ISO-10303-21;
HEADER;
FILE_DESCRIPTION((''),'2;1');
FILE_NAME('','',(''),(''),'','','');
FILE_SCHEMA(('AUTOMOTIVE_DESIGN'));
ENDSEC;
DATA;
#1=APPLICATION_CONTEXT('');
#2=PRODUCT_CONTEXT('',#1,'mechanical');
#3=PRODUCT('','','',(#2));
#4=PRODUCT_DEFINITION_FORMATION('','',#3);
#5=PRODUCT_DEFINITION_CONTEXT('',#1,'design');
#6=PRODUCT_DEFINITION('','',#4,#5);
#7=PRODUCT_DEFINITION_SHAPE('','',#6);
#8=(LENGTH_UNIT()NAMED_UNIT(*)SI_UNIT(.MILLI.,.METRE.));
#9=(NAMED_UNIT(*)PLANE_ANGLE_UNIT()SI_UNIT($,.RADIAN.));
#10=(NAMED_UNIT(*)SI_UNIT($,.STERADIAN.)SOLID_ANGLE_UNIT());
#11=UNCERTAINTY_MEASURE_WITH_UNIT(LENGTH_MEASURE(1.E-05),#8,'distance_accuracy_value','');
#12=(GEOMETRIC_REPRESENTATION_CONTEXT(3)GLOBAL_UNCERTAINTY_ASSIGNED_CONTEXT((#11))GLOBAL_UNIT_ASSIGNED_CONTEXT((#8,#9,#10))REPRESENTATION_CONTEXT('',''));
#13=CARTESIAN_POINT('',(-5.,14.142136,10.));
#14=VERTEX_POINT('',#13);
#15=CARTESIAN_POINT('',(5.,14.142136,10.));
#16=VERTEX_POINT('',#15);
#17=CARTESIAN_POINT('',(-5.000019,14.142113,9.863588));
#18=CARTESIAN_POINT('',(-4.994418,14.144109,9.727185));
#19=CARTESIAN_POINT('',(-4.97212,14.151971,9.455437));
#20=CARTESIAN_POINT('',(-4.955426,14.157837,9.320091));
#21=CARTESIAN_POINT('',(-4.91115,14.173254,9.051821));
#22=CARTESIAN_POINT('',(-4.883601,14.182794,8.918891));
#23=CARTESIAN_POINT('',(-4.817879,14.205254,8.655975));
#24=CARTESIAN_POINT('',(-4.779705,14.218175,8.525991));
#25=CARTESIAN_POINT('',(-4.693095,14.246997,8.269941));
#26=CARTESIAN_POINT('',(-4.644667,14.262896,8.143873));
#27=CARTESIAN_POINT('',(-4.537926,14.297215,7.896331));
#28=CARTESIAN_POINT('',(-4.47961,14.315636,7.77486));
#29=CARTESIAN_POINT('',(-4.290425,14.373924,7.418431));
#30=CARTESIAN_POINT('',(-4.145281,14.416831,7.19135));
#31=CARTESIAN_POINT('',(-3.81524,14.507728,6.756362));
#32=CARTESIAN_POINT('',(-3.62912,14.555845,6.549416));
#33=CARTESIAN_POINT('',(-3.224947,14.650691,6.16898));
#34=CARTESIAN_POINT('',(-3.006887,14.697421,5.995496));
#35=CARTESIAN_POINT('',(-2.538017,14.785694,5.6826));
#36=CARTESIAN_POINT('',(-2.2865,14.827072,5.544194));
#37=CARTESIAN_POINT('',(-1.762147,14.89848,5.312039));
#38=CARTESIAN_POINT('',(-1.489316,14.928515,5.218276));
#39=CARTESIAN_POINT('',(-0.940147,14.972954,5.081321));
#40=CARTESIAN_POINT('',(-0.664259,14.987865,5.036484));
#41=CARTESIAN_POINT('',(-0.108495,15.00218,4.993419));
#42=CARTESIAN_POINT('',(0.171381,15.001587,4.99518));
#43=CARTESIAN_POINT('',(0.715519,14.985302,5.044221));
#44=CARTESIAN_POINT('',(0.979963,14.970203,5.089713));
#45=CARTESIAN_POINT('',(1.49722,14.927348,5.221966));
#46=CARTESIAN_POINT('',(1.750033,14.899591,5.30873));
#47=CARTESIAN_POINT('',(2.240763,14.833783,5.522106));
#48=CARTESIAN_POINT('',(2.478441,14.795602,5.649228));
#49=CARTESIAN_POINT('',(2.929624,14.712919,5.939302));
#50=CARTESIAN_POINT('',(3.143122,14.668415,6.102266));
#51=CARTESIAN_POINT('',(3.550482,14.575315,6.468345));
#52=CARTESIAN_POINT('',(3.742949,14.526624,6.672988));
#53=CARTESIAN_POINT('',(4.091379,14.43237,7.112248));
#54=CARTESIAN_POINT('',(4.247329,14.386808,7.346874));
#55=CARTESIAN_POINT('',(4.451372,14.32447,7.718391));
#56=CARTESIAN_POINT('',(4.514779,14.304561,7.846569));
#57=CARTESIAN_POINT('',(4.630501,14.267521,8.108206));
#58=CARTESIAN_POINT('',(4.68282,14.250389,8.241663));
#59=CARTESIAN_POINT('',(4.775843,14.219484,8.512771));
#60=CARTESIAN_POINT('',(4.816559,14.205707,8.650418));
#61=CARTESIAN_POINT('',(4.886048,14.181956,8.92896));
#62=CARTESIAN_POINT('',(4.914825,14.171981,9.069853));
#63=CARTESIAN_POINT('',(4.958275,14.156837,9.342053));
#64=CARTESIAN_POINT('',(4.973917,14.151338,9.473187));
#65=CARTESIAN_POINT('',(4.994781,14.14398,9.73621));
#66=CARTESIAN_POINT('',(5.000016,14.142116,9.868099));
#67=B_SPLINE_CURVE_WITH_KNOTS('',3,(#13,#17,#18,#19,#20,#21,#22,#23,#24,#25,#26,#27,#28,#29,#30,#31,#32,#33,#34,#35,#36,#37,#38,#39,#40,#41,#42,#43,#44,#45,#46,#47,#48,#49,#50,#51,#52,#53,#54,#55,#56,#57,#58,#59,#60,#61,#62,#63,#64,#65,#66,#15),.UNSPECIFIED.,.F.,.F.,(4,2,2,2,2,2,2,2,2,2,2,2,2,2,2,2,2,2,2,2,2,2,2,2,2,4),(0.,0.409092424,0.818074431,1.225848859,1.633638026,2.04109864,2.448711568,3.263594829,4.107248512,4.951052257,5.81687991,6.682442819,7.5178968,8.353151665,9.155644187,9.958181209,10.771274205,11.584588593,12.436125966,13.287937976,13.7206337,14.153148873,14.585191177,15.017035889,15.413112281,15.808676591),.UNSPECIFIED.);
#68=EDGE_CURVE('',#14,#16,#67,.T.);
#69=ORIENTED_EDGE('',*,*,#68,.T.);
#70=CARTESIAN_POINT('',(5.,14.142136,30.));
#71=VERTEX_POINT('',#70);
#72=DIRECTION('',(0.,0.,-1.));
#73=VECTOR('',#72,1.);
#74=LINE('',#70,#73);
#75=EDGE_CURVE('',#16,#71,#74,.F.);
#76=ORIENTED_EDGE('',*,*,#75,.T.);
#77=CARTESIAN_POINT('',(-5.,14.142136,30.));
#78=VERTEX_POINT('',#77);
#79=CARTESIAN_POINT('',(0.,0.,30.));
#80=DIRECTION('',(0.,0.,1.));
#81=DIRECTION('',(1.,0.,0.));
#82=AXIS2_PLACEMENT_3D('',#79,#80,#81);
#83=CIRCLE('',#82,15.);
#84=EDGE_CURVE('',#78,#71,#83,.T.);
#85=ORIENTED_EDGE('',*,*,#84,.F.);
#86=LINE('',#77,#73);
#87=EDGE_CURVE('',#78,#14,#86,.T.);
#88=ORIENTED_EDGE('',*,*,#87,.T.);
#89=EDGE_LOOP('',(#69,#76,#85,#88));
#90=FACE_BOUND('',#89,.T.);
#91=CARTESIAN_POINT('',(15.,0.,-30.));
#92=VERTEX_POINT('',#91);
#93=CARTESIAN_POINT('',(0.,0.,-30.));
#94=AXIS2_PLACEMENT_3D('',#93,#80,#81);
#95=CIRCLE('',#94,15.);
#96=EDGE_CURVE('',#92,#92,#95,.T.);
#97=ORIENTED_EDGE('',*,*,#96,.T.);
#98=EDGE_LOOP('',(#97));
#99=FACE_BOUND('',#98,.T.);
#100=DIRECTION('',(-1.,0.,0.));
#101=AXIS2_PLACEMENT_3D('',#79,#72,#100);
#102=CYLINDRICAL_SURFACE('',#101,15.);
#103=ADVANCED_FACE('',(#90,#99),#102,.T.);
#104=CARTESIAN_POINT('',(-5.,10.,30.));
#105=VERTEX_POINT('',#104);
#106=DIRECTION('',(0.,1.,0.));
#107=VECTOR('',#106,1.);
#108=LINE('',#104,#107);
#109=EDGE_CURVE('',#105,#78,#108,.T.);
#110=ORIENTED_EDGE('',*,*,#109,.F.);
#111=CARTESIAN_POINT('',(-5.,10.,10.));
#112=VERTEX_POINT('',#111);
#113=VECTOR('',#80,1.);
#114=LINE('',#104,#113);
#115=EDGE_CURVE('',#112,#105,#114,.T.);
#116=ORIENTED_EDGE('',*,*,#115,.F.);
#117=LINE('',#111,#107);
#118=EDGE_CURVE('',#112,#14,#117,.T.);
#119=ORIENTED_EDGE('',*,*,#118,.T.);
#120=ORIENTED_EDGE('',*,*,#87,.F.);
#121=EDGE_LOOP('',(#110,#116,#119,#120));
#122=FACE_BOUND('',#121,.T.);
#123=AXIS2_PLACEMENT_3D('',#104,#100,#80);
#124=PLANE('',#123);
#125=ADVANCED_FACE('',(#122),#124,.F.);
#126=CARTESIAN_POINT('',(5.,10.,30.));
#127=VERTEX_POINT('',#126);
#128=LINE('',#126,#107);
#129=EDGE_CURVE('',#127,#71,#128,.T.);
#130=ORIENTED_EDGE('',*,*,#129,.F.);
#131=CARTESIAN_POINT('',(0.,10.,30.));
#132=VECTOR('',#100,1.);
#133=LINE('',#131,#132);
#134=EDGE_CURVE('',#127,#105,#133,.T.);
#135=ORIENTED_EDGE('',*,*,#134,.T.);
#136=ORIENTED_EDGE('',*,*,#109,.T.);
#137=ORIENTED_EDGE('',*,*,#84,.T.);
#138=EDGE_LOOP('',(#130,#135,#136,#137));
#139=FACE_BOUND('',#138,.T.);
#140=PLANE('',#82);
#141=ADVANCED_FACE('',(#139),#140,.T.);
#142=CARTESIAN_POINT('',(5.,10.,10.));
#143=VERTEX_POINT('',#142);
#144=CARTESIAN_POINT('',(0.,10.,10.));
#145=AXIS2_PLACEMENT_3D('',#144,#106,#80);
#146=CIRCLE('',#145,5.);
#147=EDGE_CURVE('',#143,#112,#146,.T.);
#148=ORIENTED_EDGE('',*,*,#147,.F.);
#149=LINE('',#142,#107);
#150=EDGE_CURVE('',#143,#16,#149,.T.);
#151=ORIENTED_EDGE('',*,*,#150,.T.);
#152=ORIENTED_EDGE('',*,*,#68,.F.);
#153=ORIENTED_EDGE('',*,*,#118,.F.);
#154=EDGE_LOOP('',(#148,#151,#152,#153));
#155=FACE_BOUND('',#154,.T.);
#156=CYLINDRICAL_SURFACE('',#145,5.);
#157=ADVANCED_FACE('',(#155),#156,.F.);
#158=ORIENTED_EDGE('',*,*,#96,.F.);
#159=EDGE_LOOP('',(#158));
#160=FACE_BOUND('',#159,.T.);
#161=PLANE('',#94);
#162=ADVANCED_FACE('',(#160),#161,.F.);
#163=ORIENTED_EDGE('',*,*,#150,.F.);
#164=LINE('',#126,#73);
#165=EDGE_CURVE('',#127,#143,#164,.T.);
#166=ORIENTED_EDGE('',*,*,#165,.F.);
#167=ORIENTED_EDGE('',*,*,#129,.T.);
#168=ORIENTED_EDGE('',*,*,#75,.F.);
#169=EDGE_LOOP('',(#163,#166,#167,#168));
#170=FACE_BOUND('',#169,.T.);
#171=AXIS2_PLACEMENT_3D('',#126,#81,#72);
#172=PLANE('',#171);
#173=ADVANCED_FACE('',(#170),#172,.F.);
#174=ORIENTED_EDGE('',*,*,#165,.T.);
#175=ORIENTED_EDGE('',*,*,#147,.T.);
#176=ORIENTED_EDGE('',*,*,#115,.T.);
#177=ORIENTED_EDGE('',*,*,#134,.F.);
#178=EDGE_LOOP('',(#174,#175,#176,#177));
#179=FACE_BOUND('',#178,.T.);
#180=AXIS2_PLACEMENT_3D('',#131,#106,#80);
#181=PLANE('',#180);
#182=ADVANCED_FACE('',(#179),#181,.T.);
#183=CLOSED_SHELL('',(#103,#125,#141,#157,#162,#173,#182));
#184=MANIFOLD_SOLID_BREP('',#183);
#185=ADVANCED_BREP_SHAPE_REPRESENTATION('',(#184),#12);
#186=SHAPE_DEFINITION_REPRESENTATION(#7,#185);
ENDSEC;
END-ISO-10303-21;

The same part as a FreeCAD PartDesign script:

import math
import FreeCAD as App
import Part
import Sketcher
from FreeCAD import Vector
Q = App.Units.Quantity

doc = App.newDocument("Part")
body = doc.addObject("PartDesign::Body", "Body")

# Sketch on XY plane
sketch1 = doc.addObject("Sketcher::SketchObject", "Sketch")
body.addObject(sketch1)
sketch1.AttachmentSupport = (doc.XY_Plane, [""])
sketch1.MapMode = "FlatFace"
sketch1.addGeometry(Part.Circle(Vector(0, 0, 0), Vector(0, 0, 1), 15), False)
sketch1.addConstraint([
    Sketcher.Constraint("Coincident", 0, 3, -1, 1),
    Sketcher.Constraint("Diameter", 0, Q("30 mm")),
])
pad1 = doc.addObject("PartDesign::Pad", "Pad")
body.addObject(pad1)
pad1.Profile = sketch1
pad1.Length = 60
pad1.Midplane = True

# Sketch on XZ plane
sketch2 = doc.addObject("Sketcher::SketchObject", "Sketch001")
body.addObject(sketch2)
sketch2.AttachmentSupport = (doc.XZ_Plane, [""])
sketch2.MapMode = "FlatFace"
sketch2.AttachmentOffset = App.Placement(Vector(0, 0, -15), App.Rotation())
sketch2.addGeometry([
    Part.LineSegment(Vector(-5, 10, 0), Vector(-5, 30, 0)),
    Part.ArcOfCircle(Part.Circle(Vector(0, 30, 0), Vector(0, 0, 1), 5), math.radians(0), math.radians(180)),
    Part.LineSegment(Vector(5, 30, 0), Vector(5, 10, 0)),
    Part.ArcOfCircle(Part.Circle(Vector(0, 10, 0), Vector(0, 0, 1), 5), math.radians(180), math.radians(360)),
], False)
sketch2.addConstraint([
    Sketcher.Constraint("Tangent", 0, 2, 1, 2),
    Sketcher.Constraint("Tangent", 1, 1, 2, 1),
    Sketcher.Constraint("Tangent", 2, 2, 3, 2),
    Sketcher.Constraint("Tangent", 3, 1, 0, 1),
    Sketcher.Constraint("Vertical", 0),
    Sketcher.Constraint("Vertical", 2),
    Sketcher.Constraint("PointOnObject", 1, 3, -2),
    Sketcher.Constraint("Radius", 1, Q("5 mm")),
    Sketcher.Constraint("DistanceY", 0, 1, 0, 2, Q("20 mm")),
    Sketcher.Constraint("DistanceY", -1, 1, 1, 3, Q("30 mm")),
])
pocket1 = doc.addObject("PartDesign::Pocket", "Pocket")
body.addObject(pocket1)
pocket1.Profile = sketch2
pocket1.Length = 5
pocket1.Reversed = True

doc.recompute()
